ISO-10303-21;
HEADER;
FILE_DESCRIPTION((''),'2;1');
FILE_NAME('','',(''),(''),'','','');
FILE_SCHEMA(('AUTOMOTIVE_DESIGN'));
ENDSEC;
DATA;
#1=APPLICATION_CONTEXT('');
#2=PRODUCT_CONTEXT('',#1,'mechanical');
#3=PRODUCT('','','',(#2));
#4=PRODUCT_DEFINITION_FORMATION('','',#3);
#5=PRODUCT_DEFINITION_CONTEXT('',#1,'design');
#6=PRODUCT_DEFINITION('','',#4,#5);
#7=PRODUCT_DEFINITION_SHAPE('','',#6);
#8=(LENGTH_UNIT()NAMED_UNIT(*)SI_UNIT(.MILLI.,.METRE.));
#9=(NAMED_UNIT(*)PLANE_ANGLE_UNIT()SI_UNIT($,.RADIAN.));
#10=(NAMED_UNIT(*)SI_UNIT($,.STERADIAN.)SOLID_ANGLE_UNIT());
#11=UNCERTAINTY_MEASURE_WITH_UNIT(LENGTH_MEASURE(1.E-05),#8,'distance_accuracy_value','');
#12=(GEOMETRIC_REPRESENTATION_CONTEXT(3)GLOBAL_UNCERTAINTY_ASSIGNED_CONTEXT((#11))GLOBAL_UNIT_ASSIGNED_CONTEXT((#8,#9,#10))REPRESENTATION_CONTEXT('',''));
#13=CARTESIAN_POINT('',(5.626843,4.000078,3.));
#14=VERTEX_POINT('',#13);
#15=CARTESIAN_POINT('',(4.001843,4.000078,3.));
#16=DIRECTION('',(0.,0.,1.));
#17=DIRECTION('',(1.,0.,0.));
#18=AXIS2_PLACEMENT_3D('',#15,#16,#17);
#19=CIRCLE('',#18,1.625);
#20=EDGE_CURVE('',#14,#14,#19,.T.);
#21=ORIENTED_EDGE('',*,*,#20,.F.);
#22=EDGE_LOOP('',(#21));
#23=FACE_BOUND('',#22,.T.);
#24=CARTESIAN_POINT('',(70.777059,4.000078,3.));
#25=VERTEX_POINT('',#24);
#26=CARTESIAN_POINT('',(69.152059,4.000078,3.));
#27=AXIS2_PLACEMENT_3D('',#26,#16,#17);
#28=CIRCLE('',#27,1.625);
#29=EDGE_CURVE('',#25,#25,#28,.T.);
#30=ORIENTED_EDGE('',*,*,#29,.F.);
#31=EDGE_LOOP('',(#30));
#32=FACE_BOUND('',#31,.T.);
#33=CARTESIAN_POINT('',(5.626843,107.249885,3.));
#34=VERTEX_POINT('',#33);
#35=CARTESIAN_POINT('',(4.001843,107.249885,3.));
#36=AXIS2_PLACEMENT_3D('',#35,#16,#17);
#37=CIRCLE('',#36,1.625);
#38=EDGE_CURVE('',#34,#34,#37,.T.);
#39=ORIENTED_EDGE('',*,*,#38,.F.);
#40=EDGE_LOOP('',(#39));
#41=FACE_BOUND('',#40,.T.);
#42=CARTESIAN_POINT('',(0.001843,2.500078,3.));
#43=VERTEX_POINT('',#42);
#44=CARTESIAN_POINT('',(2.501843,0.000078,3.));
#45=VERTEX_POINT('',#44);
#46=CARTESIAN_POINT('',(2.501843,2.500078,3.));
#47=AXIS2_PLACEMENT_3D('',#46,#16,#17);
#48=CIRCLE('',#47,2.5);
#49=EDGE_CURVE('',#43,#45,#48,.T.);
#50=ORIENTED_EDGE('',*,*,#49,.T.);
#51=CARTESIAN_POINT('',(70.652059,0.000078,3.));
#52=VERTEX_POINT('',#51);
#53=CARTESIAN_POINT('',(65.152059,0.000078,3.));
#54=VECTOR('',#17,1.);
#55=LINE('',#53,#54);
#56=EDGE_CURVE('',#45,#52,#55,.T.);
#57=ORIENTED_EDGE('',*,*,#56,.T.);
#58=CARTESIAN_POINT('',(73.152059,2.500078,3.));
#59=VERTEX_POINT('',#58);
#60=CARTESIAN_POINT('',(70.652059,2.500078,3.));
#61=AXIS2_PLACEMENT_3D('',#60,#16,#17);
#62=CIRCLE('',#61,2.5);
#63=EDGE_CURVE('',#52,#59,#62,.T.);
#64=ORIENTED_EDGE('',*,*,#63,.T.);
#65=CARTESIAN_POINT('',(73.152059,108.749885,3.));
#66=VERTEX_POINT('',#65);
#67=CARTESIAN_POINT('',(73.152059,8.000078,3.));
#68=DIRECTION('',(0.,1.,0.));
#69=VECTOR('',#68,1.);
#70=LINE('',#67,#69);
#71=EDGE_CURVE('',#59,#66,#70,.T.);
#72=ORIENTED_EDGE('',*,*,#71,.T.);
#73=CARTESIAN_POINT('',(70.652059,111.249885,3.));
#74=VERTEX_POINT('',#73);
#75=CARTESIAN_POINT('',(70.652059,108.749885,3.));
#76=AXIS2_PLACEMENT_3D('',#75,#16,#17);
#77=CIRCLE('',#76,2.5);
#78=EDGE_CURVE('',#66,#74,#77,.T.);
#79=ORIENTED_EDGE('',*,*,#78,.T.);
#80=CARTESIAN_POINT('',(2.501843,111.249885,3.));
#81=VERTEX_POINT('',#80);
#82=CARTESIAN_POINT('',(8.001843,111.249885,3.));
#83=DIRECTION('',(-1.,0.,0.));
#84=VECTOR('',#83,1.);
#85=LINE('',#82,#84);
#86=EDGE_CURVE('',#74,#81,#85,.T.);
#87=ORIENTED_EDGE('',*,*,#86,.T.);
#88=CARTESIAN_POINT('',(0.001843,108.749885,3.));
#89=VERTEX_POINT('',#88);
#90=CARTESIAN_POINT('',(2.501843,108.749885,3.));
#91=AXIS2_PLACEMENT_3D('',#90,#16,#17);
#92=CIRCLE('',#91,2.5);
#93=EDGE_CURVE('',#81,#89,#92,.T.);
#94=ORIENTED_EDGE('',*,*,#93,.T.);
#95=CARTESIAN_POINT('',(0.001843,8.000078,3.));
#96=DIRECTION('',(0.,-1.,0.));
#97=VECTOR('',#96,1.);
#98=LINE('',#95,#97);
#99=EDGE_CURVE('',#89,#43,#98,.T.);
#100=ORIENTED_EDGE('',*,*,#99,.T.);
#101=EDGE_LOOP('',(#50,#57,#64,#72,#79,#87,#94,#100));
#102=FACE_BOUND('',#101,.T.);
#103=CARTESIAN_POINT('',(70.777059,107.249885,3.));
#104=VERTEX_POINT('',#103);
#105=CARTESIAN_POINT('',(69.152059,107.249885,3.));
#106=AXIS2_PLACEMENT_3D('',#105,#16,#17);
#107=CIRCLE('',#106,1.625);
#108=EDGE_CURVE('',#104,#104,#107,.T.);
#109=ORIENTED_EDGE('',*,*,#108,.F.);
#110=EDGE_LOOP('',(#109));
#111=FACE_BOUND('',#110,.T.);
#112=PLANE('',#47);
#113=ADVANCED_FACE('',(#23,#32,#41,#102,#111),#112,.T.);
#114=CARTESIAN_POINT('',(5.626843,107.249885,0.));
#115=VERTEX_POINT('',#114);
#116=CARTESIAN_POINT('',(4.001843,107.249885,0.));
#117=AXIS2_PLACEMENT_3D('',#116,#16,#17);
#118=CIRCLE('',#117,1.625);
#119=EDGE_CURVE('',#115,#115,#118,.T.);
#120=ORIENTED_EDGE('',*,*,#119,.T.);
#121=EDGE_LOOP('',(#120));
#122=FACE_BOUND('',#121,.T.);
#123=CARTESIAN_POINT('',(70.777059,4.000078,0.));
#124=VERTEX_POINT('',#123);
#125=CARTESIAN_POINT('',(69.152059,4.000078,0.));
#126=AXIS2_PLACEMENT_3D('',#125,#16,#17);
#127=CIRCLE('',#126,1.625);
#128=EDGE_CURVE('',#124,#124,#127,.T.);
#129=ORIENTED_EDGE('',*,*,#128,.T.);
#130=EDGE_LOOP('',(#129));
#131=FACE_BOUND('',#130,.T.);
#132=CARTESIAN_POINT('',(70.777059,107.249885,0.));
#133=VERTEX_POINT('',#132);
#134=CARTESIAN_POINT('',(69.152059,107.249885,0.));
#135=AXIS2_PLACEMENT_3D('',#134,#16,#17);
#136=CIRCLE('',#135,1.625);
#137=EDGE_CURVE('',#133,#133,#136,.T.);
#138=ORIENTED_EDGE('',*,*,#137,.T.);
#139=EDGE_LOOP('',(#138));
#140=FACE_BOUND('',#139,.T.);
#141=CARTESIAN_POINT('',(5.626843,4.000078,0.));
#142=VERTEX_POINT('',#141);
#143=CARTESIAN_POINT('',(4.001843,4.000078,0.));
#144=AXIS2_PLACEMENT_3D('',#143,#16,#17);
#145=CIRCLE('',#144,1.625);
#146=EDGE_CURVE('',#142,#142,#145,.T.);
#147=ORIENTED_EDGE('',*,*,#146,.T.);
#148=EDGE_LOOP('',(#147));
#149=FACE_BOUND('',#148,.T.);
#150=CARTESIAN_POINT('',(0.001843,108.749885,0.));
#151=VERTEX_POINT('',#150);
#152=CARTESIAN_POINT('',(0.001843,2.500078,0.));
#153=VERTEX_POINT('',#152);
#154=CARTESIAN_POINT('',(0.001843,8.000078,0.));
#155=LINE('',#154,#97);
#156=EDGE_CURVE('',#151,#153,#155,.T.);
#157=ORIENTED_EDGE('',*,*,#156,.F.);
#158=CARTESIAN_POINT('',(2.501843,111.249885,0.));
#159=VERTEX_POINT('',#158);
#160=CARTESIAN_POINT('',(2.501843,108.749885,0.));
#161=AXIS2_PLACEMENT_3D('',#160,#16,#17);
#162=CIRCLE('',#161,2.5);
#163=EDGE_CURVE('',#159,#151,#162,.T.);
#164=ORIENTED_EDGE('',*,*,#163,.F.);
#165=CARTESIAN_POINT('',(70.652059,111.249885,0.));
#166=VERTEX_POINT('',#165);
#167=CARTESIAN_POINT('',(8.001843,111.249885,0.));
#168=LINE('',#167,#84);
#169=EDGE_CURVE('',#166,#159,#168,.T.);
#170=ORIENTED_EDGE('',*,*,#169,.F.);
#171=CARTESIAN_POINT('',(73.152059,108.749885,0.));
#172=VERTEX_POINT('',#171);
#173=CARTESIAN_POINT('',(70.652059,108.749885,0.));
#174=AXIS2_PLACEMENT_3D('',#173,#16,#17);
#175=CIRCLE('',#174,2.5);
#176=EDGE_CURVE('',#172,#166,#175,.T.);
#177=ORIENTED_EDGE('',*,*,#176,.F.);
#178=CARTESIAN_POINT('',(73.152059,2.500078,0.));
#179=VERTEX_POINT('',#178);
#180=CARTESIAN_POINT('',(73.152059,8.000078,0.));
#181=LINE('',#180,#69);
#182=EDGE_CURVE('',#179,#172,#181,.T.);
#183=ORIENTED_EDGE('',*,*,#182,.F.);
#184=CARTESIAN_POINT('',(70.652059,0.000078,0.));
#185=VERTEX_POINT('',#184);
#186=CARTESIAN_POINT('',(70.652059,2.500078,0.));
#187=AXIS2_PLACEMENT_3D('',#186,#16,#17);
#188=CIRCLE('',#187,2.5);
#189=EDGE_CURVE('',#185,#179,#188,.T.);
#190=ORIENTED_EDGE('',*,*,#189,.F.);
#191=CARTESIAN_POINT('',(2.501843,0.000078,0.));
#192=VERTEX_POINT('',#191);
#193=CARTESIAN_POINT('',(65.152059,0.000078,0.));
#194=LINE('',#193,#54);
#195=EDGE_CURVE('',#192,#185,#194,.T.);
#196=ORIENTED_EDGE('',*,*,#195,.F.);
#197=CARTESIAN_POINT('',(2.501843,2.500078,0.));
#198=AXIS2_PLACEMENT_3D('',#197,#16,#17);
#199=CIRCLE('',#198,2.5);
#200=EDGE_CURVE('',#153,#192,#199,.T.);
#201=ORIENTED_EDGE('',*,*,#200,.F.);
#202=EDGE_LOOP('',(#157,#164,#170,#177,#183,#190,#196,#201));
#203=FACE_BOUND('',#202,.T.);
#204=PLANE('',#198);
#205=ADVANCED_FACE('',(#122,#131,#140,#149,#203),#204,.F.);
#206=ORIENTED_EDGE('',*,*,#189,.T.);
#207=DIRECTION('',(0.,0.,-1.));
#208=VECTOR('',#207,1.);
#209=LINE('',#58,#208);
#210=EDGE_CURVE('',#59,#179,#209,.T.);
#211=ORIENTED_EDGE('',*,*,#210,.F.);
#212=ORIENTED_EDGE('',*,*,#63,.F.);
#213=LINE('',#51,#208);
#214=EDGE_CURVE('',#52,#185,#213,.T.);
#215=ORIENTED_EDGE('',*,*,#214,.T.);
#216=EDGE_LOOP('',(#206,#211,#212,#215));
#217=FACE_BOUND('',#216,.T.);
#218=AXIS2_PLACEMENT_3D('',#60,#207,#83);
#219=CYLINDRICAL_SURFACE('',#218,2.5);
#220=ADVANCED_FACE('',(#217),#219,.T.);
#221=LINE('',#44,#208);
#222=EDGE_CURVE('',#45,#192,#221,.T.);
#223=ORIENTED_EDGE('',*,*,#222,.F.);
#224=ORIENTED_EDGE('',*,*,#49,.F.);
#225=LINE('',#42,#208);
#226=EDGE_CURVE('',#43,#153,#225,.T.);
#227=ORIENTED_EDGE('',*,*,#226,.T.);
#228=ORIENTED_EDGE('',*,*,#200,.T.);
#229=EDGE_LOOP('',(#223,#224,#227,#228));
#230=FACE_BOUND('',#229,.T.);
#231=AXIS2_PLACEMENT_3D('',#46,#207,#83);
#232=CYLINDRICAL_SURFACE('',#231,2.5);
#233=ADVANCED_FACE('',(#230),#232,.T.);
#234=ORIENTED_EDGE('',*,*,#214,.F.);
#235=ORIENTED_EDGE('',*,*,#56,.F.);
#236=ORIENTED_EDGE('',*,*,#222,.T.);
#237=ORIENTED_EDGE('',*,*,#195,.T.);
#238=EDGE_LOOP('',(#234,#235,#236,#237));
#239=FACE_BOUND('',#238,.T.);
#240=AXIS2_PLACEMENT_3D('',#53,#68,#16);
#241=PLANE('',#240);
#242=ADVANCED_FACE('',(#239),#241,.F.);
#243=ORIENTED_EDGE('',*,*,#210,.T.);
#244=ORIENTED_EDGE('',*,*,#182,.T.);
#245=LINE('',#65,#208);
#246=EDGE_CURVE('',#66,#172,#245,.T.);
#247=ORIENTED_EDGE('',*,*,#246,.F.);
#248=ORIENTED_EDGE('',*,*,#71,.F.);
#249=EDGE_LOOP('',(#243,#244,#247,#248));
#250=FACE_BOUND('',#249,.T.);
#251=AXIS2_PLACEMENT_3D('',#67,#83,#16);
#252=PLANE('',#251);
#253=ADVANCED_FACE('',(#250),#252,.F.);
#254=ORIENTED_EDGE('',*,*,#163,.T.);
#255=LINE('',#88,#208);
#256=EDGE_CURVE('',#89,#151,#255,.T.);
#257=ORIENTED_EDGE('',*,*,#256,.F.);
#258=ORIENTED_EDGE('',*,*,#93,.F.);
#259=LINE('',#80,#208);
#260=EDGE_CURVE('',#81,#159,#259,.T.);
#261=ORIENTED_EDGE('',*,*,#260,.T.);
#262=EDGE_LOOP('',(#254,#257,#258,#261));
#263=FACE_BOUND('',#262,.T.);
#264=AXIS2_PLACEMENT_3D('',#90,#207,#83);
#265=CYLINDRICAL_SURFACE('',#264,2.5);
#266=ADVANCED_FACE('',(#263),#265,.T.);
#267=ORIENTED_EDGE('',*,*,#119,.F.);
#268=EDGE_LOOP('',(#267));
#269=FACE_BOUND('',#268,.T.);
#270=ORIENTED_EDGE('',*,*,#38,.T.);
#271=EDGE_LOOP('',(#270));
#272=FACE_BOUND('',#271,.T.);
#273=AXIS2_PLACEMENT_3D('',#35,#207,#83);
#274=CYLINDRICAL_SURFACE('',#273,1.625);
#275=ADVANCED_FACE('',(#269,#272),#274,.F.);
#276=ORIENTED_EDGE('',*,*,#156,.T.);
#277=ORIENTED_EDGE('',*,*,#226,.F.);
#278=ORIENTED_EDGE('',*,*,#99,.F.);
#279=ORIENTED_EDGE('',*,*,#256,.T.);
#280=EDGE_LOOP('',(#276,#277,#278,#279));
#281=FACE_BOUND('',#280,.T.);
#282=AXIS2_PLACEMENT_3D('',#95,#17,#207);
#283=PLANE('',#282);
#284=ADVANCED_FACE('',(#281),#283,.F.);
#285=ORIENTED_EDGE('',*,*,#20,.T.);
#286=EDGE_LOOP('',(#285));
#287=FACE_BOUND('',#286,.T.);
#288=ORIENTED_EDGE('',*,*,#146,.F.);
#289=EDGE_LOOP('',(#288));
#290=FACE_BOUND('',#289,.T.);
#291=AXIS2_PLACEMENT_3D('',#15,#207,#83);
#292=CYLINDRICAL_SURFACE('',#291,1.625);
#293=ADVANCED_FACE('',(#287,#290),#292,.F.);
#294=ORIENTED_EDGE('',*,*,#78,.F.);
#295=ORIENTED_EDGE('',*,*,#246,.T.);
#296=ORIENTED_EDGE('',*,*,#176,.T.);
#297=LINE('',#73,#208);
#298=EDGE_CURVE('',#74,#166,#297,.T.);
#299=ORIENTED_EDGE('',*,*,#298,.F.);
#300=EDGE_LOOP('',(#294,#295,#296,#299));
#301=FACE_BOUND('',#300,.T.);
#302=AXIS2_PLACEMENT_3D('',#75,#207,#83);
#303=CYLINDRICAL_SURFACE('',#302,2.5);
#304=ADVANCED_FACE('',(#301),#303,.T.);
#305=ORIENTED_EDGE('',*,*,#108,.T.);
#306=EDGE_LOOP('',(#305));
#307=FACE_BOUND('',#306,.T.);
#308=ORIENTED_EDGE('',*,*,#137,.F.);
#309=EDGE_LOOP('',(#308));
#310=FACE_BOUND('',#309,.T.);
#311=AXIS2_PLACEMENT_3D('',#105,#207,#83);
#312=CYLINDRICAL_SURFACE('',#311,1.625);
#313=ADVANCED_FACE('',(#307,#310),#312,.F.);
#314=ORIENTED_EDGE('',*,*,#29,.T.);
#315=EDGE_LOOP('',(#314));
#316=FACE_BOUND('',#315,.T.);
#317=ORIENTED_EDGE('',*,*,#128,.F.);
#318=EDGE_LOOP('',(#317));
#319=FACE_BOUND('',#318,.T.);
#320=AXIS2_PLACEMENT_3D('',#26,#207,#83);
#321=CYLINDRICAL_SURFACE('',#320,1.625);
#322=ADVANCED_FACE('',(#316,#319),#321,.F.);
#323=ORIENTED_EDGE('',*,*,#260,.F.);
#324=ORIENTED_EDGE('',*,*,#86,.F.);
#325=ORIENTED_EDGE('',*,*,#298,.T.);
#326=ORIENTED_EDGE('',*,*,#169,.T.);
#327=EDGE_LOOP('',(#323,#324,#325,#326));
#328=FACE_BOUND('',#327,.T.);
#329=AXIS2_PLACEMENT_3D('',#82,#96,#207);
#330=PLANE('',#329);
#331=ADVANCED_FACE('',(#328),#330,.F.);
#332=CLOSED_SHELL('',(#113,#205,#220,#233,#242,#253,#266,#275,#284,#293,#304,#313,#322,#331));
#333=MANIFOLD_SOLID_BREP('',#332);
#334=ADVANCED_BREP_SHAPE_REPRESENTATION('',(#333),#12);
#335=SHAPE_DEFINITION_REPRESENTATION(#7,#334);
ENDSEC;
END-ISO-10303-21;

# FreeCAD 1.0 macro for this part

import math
import FreeCAD as App
import Part
import Sketcher
from FreeCAD import Vector
Q = App.Units.Quantity

doc = App.newDocument("Part")
params = doc.addObject("Spreadsheet::Sheet", "Params")
for row, (alias, value) in enumerate([
    ("sketch1_radius", "2.5 mm"),
    ("sketch1_diameter", "3.25 mm"),
    ("pad1_length", "3 mm"),
], start=1):
    params.set(f"A{row}", alias)
    params.set(f"B{row}", "=" + value)
    params.setAlias(f"B{row}", alias)

body = doc.addObject("PartDesign::Body", "Body")

# Sketch on XY plane
sketch1 = body.newObject("Sketcher::SketchObject", "Sketch")
sketch1.AttachmentSupport = (doc.getObject("XY_Plane"), [""])
sketch1.MapMode = "FlatFace"
sketch1.addGeometry([
    Part.ArcOfCircle(Part.Circle(Vector(70.7, 108.7, 0), Vector(0, 0, 1), 2.5), math.radians(0), math.radians(90)),  # 0
    Part.LineSegment(Vector(70.7, 111.2, 0), Vector(2.5, 111.2, 0)),  # 1
    Part.ArcOfCircle(Part.Circle(Vector(2.5, 108.7, 0), Vector(0, 0, 1), 2.5), math.radians(90), math.radians(180)),  # 2
    Part.LineSegment(Vector(0, 108.7, 0), Vector(0, 2.5, 0)),  # 3
    Part.ArcOfCircle(Part.Circle(Vector(2.5, 2.5, 0), Vector(0, 0, 1), 2.5), math.radians(180), math.radians(270)),  # 4
    Part.LineSegment(Vector(2.5, 0, 0), Vector(70.7, 0, 0)),  # 5
    Part.ArcOfCircle(Part.Circle(Vector(70.7, 2.5, 0), Vector(0, 0, 1), 2.5), math.radians(-90), math.radians(0)),  # 6
    Part.LineSegment(Vector(73.2, 2.5, 0), Vector(73.2, 108.7, 0)),  # 7
    Part.Circle(Vector(4, 4, 0), Vector(0, 0, 1), 1.6),  # 8
    Part.Circle(Vector(69.2, 4, 0), Vector(0, 0, 1), 1.6),  # 9
    Part.Circle(Vector(4, 107.2, 0), Vector(0, 0, 1), 1.6),  # 10
    Part.Circle(Vector(69.2, 107.2, 0), Vector(0, 0, 1), 1.6),  # 11
], False)
sketch1.addConstraint([
    Sketcher.Constraint("Tangent", 0, 2, 1, 1),
    Sketcher.Constraint("Tangent", 1, 2, 2, 1),
    Sketcher.Constraint("Tangent", 2, 2, 3, 1),
    Sketcher.Constraint("Tangent", 3, 2, 4, 1),
    Sketcher.Constraint("Tangent", 4, 2, 5, 1),
    Sketcher.Constraint("Tangent", 5, 2, 6, 1),
    Sketcher.Constraint("Tangent", 6, 2, 7, 1),
    Sketcher.Constraint("Tangent", 7, 2, 0, 1),
    Sketcher.Constraint("Horizontal", 1),
    Sketcher.Constraint("Vertical", 3),
    Sketcher.Constraint("Horizontal", 5),
    Sketcher.Constraint("Vertical", 7),
    Sketcher.Constraint("Equal", 0, 2),
    Sketcher.Constraint("Equal", 2, 4),
    Sketcher.Constraint("Equal", 4, 6),
    Sketcher.Constraint("Equal", 8, 9),
    Sketcher.Constraint("Equal", 9, 10),
    Sketcher.Constraint("Equal", 10, 11),
    Sketcher.Constraint("Horizontal", 8, 3, 9, 3),
    Sketcher.Constraint("Horizontal", 10, 3, 11, 3),
    Sketcher.Constraint("Vertical", 8, 3, 10, 3),
    Sketcher.Constraint("Vertical", 9, 3, 11, 3),
    Sketcher.Constraint("Radius", 0, Q("2.5 mm")),
    Sketcher.Constraint("Diameter", 8, Q("3.25 mm")),
    Sketcher.Constraint("DistanceY", 11, 3, 0, 2, Q("4 mm")),
    Sketcher.Constraint("DistanceX", 2, 2, 10, 3, Q("4 mm")),
    Sketcher.Constraint("DistanceY", 4, 2, 8, 3, Q("4 mm")),
    Sketcher.Constraint("DistanceX", 9, 3, 6, 2, Q("4 mm")),
    Sketcher.Constraint("DistanceX", 1, 2, 1, 1, Q("68.150215 mm")),
    Sketcher.Constraint("DistanceY", 3, 2, 3, 1, Q("106.249807 mm")),
    Sketcher.Constraint("DistanceX", -1, 1, 0, 3, Q("70.652059 mm")),
    Sketcher.Constraint("DistanceY", -1, 1, 4, 3, Q("2.500078 mm")),
])
sketch1.setExpression("Constraints[22]", "Params.sketch1_radius")
sketch1.setExpression("Constraints[23]", "Params.sketch1_diameter")
pad1 = body.newObject("PartDesign::Pad", "Pad")
pad1.Profile = sketch1
pad1.setExpression("Length", "Params.pad1_length")

doc.recompute()
